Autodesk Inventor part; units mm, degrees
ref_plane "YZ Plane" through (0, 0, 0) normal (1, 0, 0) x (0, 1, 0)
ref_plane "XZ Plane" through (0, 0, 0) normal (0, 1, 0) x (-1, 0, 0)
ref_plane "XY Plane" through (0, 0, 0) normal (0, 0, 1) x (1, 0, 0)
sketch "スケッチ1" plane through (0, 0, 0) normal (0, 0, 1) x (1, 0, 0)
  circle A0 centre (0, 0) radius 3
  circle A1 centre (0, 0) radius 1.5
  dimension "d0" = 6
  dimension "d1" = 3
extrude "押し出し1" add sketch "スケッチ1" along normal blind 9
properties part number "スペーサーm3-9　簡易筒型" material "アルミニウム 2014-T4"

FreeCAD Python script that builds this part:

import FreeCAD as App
import Part
import Sketcher
Q = App.Units.Quantity

doc = App.newDocument("Part")
body = doc.addObject("PartDesign::Body", "Body")

sketch1 = doc.addObject("Sketcher::SketchObject", "Sketch")
body.addObject(sketch1)
sketch1.AttachmentSupport = (doc.XY_Plane, [""])
sketch1.MapMode = "FlatFace"
sketch1.addGeometry([
    Part.Circle(App.Vector(0, 0, 0), App.Vector(0, 0, 1), 3),
    Part.Circle(App.Vector(0, 0, 0), App.Vector(0, 0, 1), 1.5),
], False)
sketch1.addConstraint([
    Sketcher.Constraint("Coincident", 0, 3, -1, 1),
    Sketcher.Constraint("Coincident", 1, 3, -1, 1),
    Sketcher.Constraint("Diameter", 0, Q("6 mm")),
    Sketcher.Constraint("Diameter", 1, Q("3 mm")),
])
pad1 = doc.addObject("PartDesign::Pad", "Pad")
body.addObject(pad1)
pad1.Profile = sketch1
pad1.Length = 9

doc.recompute()
